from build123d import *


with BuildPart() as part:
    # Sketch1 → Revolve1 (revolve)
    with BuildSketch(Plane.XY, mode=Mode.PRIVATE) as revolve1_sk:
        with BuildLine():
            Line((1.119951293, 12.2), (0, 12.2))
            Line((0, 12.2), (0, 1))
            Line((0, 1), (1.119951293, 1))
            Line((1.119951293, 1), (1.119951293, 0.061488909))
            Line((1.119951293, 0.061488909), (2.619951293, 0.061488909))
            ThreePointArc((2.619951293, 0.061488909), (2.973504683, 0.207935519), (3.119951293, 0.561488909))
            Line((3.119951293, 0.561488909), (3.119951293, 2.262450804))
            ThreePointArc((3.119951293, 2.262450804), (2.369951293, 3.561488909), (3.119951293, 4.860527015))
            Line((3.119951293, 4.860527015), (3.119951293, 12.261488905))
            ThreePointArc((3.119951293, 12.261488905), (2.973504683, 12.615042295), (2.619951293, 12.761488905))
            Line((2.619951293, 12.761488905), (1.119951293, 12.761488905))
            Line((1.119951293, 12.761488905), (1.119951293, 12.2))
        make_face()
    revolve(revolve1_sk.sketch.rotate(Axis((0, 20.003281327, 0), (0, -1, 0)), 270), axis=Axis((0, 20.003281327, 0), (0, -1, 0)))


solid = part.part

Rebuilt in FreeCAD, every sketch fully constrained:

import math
import FreeCAD as App
import Part
import Sketcher

V = App.Vector
Q = App.Units.Quantity

doc = App.newDocument("Part")
params = doc.addObject("Spreadsheet::Sheet", "Params")
for row, (alias, value) in enumerate([
    ("sketch1_radius", "0.5 mm"),
    ("sketch1_radius2", "1.5 mm"),
    ("sketch1_width", "1.5 mm"),
    ("sketch1_height", "11.2 mm"),
    ("revolution_angle", "360 deg"),
], start=1):
    params.set(f"A{row}", alias)
    params.set(f"B{row}", "=" + value)
    params.setAlias(f"B{row}", alias)

body = doc.addObject("PartDesign::Body", "Body")

# Sketch on XY plane
sketch1 = body.newObject("Sketcher::SketchObject", "Sketch")
sketch1.AttachmentSupport = (doc.getObject("XY_Plane"), [""])
sketch1.MapMode = "FlatFace"
sketch1.addGeometry([
    Part.LineSegment(V(1.1, 12.2, 0), V(0, 12.2, 0)),  # 0
    Part.LineSegment(V(0, 12.2, 0), V(0, 1, 0)),  # 1
    Part.LineSegment(V(0, 1, 0), V(1.1, 1, 0)),  # 2
    Part.LineSegment(V(1.1, 1, 0), V(1.1, 0.1, 0)),  # 3
    Part.LineSegment(V(1.1, 0.1, 0), V(2.6, 0.1, 0)),  # 4
    Part.ArcOfCircle(Part.Circle(V(2.6, 0.6, 0), V(0, 0, 1), 0.5), math.radians(-90), math.radians(0)),  # 5
    Part.LineSegment(V(3.1, 0.6, 0), V(3.1, 2.3, 0)),  # 6
    Part.ArcOfCircle(Part.Circle(V(3.9, 3.6, 0), V(0, 0, 1), 1.5), math.radians(120), math.radians(240)),  # 7
    Part.LineSegment(V(3.1, 4.9, 0), V(3.1, 12.3, 0)),  # 8
    Part.ArcOfCircle(Part.Circle(V(2.6, 12.3, 0), V(0, 0, 1), 0.5), math.radians(0), math.radians(90)),  # 9
    Part.LineSegment(V(2.6, 12.8, 0), V(1.1, 12.8, 0)),  # 10
    Part.LineSegment(V(1.1, 12.8, 0), V(1.1, 12.2, 0)),  # 11
], False)
sketch1.addConstraint([
    Sketcher.Constraint("Coincident", 0, 2, 1, 1),
    Sketcher.Constraint("Coincident", 1, 2, 2, 1),
    Sketcher.Constraint("Coincident", 2, 2, 3, 1),
    Sketcher.Constraint("Coincident", 3, 2, 4, 1),
    Sketcher.Constraint("Tangent", 4, 2, 5, 1),
    Sketcher.Constraint("Tangent", 5, 2, 6, 1),
    Sketcher.Constraint("Coincident", 6, 2, 7, 2),
    Sketcher.Constraint("Coincident", 7, 1, 8, 1),
    Sketcher.Constraint("Tangent", 8, 2, 9, 1),
    Sketcher.Constraint("Tangent", 9, 2, 10, 1),
    Sketcher.Constraint("Coincident", 10, 2, 11, 1),
    Sketcher.Constraint("Coincident", 11, 2, 0, 1),
    Sketcher.Constraint("Horizontal", 0),
    Sketcher.Constraint("Vertical", 1),
    Sketcher.Constraint("Horizontal", 2),
    Sketcher.Constraint("Vertical", 3),
    Sketcher.Constraint("Horizontal", 4),
    Sketcher.Constraint("Vertical", 6),
    Sketcher.Constraint("Vertical", 8),
    Sketcher.Constraint("Horizontal", 10),
    Sketcher.Constraint("Vertical", 11),
    Sketcher.Constraint("Equal", 5, 9),
    Sketcher.Constraint("PointOnObject", 0, 2, -2),
    Sketcher.Constraint("Vertical", 5, 3, 9, 3),
    Sketcher.Constraint("Vertical", 3, 2, 10, 2),
    Sketcher.Constraint("Radius", 5, Q("0.5 mm")),
    Sketcher.Constraint("Radius", 7, Q("1.5 mm")),
    Sketcher.Constraint("DistanceX", 4, 1, 4, 2, Q("1.5 mm")),
    Sketcher.Constraint("DistanceY", 1, 2, 1, 1, Q("11.2 mm")),
    Sketcher.Constraint("DistanceY", -1, 1, 1, 2, Q("1 mm")),
    Sketcher.Constraint("DistanceY", 5, 3, 7, 3, Q("3 mm")),
    Sketcher.Constraint("DistanceY", 7, 3, 9, 3, Q("8.7 mm")),
    Sketcher.Constraint("DistanceX", 5, 3, 7, 3, Q("1.25 mm")),
    Sketcher.Constraint("DistanceX", 0, 2, 0, 1, Q("1.119951 mm")),
    Sketcher.Constraint("DistanceY", 3, 2, 3, 1, Q("0.938511 mm")),
])
sketch1.setExpression("Constraints[25]", "Params.sketch1_radius")
sketch1.setExpression("Constraints[26]", "Params.sketch1_radius2")
sketch1.setExpression("Constraints[27]", "Params.sketch1_width")
sketch1.setExpression("Constraints[28]", "Params.sketch1_height")
revolution = body.newObject("PartDesign::Revolution", "Revolution")
revolution.Profile = sketch1
revolution.ReferenceAxis = (sketch1, ["V_Axis"])
revolution.setExpression("Angle", "Params.revolution_angle")

doc.recompute()
